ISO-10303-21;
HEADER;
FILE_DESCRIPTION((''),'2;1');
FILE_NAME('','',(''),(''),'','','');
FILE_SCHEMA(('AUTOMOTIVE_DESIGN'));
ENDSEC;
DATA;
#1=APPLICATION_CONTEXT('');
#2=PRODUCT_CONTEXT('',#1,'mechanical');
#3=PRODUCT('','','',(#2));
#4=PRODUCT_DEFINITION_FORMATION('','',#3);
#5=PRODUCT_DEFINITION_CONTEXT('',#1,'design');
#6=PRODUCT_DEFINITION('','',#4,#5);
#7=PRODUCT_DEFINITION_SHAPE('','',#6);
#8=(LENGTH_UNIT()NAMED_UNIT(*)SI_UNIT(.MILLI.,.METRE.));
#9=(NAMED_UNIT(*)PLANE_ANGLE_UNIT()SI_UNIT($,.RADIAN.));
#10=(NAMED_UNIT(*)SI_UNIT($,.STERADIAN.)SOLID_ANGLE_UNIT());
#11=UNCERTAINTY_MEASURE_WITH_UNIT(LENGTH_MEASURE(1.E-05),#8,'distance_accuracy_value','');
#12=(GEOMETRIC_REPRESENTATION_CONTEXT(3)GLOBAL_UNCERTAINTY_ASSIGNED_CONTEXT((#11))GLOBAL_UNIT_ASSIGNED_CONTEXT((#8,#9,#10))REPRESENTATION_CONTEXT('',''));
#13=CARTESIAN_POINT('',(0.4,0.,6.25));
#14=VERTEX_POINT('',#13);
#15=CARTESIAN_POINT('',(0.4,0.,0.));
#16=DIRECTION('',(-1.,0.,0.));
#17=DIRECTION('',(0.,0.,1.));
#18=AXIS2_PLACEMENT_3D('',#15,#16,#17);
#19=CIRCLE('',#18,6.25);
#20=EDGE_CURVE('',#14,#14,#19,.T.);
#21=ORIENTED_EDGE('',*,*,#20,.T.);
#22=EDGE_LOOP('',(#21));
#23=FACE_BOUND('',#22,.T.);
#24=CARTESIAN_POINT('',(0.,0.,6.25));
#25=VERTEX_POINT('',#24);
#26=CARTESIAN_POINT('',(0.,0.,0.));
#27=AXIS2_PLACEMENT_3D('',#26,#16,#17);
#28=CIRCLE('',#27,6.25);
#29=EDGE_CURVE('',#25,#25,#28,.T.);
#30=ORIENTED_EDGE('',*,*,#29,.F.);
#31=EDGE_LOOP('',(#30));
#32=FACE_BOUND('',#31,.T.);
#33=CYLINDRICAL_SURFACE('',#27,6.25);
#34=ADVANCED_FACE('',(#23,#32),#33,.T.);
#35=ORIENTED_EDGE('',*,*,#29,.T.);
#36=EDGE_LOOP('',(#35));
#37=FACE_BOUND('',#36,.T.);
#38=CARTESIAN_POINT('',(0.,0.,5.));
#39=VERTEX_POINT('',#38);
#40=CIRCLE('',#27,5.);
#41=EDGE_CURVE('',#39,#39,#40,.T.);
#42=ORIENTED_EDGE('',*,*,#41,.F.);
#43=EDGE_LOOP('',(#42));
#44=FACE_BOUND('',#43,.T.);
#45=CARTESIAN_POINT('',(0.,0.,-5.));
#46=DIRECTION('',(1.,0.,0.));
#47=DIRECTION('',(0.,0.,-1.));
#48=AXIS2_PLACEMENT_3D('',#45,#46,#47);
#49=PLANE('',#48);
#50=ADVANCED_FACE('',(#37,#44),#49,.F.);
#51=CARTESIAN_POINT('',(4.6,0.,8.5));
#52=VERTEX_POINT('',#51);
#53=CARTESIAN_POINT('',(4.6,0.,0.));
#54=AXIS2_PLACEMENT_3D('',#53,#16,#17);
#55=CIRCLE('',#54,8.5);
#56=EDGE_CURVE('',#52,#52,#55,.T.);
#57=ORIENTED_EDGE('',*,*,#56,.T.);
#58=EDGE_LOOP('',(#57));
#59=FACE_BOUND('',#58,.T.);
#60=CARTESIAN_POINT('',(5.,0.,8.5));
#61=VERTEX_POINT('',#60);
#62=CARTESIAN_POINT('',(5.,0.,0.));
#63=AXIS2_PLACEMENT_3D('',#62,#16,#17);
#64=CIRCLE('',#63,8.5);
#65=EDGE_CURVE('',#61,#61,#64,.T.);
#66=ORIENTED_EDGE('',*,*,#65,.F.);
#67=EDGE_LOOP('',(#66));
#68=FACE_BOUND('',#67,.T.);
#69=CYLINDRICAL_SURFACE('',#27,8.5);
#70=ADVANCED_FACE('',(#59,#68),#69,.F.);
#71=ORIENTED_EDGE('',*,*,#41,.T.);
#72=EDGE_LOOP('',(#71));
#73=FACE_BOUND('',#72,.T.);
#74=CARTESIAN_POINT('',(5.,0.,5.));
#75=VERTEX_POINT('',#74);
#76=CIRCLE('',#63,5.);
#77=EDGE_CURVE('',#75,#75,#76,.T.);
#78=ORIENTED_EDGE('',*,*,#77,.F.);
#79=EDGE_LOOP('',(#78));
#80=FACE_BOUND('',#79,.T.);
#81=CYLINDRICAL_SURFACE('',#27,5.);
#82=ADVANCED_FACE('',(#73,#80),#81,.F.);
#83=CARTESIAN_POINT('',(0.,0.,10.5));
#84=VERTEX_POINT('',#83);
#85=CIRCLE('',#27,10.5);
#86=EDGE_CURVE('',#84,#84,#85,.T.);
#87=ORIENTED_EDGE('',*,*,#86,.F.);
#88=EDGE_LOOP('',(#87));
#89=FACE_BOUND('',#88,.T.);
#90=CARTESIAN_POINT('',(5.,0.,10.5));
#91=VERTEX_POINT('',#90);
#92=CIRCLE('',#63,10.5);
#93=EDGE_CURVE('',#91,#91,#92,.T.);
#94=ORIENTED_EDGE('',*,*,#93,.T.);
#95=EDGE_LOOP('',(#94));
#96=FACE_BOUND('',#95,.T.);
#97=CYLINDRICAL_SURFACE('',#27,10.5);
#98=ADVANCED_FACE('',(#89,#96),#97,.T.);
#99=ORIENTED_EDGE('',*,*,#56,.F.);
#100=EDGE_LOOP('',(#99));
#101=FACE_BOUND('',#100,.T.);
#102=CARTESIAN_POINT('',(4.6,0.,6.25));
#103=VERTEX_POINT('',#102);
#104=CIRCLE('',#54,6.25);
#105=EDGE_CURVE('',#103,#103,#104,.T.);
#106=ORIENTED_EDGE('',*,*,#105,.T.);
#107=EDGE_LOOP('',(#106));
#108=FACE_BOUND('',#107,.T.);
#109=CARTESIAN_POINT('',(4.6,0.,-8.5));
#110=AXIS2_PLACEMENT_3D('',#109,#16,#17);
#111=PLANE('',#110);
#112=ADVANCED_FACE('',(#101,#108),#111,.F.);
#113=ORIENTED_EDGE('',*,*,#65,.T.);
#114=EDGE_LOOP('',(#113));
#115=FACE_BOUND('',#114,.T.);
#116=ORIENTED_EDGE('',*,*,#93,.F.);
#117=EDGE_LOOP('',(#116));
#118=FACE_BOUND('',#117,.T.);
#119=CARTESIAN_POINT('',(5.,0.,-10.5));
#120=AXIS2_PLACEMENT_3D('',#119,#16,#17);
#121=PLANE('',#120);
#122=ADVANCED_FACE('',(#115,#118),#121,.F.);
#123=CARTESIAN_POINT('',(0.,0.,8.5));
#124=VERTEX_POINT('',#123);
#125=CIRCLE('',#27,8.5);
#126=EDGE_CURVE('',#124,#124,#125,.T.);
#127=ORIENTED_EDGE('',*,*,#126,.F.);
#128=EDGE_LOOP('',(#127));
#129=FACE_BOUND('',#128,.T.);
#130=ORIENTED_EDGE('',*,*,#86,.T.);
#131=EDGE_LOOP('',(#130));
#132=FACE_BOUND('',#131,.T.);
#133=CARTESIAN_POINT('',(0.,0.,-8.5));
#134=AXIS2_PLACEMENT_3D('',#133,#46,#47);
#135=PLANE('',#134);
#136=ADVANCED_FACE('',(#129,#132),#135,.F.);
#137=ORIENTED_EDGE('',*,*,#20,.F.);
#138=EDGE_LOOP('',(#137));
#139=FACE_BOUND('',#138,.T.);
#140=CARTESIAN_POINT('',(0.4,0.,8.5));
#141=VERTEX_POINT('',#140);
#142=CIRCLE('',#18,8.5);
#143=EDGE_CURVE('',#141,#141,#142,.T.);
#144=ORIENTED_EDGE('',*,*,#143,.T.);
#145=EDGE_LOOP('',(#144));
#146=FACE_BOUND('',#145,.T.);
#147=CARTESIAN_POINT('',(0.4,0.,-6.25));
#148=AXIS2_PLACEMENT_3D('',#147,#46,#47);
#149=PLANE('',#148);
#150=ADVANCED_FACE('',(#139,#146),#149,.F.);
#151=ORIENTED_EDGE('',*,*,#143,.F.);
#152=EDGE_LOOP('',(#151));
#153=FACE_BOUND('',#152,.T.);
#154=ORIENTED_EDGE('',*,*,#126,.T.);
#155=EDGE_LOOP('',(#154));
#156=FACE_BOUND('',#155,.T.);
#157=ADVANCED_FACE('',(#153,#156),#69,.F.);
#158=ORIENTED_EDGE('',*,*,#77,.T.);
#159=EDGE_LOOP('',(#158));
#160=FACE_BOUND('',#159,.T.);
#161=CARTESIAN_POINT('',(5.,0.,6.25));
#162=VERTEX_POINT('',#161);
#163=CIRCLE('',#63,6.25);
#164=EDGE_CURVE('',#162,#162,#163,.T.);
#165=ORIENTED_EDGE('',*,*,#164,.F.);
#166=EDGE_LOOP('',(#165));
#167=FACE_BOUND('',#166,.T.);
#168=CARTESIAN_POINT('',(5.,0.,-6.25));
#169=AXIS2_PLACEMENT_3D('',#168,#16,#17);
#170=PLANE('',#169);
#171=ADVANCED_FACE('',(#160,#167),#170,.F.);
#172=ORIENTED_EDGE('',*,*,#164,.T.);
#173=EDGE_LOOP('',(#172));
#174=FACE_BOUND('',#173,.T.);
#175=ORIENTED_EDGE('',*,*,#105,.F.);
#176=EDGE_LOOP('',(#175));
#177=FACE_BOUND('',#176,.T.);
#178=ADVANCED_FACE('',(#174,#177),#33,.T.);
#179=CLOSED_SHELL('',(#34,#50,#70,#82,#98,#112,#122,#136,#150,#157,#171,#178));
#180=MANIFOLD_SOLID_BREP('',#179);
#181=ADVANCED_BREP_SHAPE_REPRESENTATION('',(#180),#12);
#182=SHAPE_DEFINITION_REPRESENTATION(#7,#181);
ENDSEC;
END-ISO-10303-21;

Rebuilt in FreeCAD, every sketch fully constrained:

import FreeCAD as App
import Part
import Sketcher

doc = App.newDocument("Part")
body = doc.addObject("PartDesign::Body", "Body")

# Sketch on XZ plane
sketch1 = body.newObject("Sketcher::SketchObject", "Sketch")
sketch1.AttachmentSupport = (doc.getObject("XZ_Plane"), [""])
sketch1.MapMode = "FlatFace"
sketch1.addGeometry([
    Part.LineSegment(App.Vector(0, -6.25, 0), App.Vector(0, -5, 0)),  # 0
    Part.LineSegment(App.Vector(0, -5, 0), App.Vector(5, -5, 0)),  # 1
    Part.LineSegment(App.Vector(5, -5, 0), App.Vector(5, -6.25, 0)),  # 2
    Part.LineSegment(App.Vector(5, -6.25, 0), App.Vector(4.6, -6.25, 0)),  # 3
    Part.LineSegment(App.Vector(4.6, -6.25, 0), App.Vector(4.6, -8.5, 0)),  # 4
    Part.LineSegment(App.Vector(4.6, -8.5, 0), App.Vector(5, -8.5, 0)),  # 5
    Part.LineSegment(App.Vector(5, -8.5, 0), App.Vector(5, -10.5, 0)),  # 6
    Part.LineSegment(App.Vector(5, -10.5, 0), App.Vector(0, -10.5, 0)),  # 7
    Part.LineSegment(App.Vector(0, -10.5, 0), App.Vector(0, -8.5, 0)),  # 8
    Part.LineSegment(App.Vector(0, -8.5, 0), App.Vector(0.4, -8.5, 0)),  # 9
    Part.LineSegment(App.Vector(0.4, -8.5, 0), App.Vector(0.4, -6.25, 0)),  # 10
    Part.LineSegment(App.Vector(0.4, -6.25, 0), App.Vector(0, -6.25, 0)),  # 11
], False)
sketch1.addConstraint([
    Sketcher.Constraint("Coincident", 0, 2, 1, 1),
    Sketcher.Constraint("Coincident", 1, 2, 2, 1),
    Sketcher.Constraint("Coincident", 2, 2, 3, 1),
    Sketcher.Constraint("Coincident", 3, 2, 4, 1),
    Sketcher.Constraint("Coincident", 4, 2, 5, 1),
    Sketcher.Constraint("Coincident", 5, 2, 6, 1),
    Sketcher.Constraint("Coincident", 6, 2, 7, 1),
    Sketcher.Constraint("Coincident", 7, 2, 8, 1),
    Sketcher.Constraint("Coincident", 8, 2, 9, 1),
    Sketcher.Constraint("Coincident", 9, 2, 10, 1),
    Sketcher.Constraint("Coincident", 10, 2, 11, 1),
    Sketcher.Constraint("Coincident", 11, 2, 0, 1),
    Sketcher.Constraint("Vertical", 0),
    Sketcher.Constraint("Horizontal", 1),
    Sketcher.Constraint("Vertical", 2),
    Sketcher.Constraint("Horizontal", 3),
    Sketcher.Constraint("Vertical", 4),
    Sketcher.Constraint("Horizontal", 5),
    Sketcher.Constraint("Vertical", 6),
    Sketcher.Constraint("Horizontal", 7),
    Sketcher.Constraint("Vertical", 8),
    Sketcher.Constraint("Horizontal", 9),
    Sketcher.Constraint("Vertical", 10),
    Sketcher.Constraint("Horizontal", 11),
    Sketcher.Constraint("PointOnObject", 0, 2, -2),
    Sketcher.Constraint("PointOnObject", 7, 2, -2),
    Sketcher.Constraint("Horizontal", 5, 2, 8, 2),
    Sketcher.Constraint("Horizontal", 3, 2, 10, 2),
    Sketcher.Constraint("Vertical", 2, 2, 5, 2),
    Sketcher.Constraint("Equal", 5, 9),
    Sketcher.Constraint("DistanceX", 1, 1, 1, 2, 5.0),
    Sketcher.Constraint("DistanceY", 6, 2, 6, 1, 2.0),
    Sketcher.Constraint("DistanceX", 3, 2, 3, 1, 0.4),
    Sketcher.Constraint("DistanceY", 0, 2, -1, 1, 5.0),
    Sketcher.Constraint("DistanceY", 0, 1, 0, 2, 1.25),
    Sketcher.Constraint("DistanceY", 4, 2, 4, 1, 2.25),
])
revolution = body.newObject("PartDesign::Revolution", "Revolution")
revolution.Profile = sketch1
revolution.ReferenceAxis = (sketch1, ["H_Axis"])
revolution.Angle = 360

doc.recompute()
